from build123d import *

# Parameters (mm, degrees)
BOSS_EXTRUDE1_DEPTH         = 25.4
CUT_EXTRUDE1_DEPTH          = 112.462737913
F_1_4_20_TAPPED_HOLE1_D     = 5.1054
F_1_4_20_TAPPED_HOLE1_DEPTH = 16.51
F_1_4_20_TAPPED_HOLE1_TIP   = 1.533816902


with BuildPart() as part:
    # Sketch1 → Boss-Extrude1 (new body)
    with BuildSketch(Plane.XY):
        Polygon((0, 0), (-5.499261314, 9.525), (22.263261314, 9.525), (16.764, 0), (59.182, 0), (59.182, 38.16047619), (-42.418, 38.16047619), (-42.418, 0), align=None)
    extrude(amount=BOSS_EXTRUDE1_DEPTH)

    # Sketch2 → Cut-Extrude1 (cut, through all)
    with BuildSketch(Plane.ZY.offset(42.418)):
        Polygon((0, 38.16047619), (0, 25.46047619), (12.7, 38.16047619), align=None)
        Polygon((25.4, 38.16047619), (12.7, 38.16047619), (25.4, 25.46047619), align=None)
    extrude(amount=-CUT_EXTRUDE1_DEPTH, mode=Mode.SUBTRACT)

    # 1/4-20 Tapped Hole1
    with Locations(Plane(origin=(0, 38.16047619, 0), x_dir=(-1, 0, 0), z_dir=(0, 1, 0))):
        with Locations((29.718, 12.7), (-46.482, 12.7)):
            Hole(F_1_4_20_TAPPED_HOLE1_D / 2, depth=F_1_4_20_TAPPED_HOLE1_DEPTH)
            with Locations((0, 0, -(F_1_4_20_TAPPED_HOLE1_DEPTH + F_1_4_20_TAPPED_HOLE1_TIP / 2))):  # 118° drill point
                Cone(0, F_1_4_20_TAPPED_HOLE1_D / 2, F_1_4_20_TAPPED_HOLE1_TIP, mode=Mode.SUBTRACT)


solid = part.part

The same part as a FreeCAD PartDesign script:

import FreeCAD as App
import Part
import Sketcher
Q = App.Units.Quantity


def add_polygon(sketch, points):
    """Adds a closed chain of lines whose ends are joined by coincident constraints."""
    first, n = sketch.GeometryCount, len(points)
    for a, b in zip(points, points[1:] + points[:1]):
        sketch.addGeometry(Part.LineSegment(App.Vector(*a, 0), App.Vector(*b, 0)), False)
    for i in range(n):
        sketch.addConstraint(Sketcher.Constraint("Coincident", first + i, 2, first + (i + 1) % n, 1))

doc = App.newDocument("Part")
params = doc.addObject("Spreadsheet::Sheet", "Params")
for row, (alias, value) in enumerate([
    ("sketch1_width", "4 in"),
    ("sketch1_width2", "1.67 in"),
    ("pad1_length", "1 in"),
    ("sketch2_width", "0.5 in"),
    ("sketch3_diameter", "0.201 in"),
    ("hole_diameter", "0.201 in"),
    ("hole_depth", "0.65 in"),
], start=1):
    params.set(f"A{row}", alias)
    params.set(f"B{row}", "=" + value)
    params.setAlias(f"B{row}", alias)

body = doc.addObject("PartDesign::Body", "Body")

sketch1 = doc.addObject("Sketcher::SketchObject", "Sketch")
body.addObject(sketch1)
sketch1.AttachmentSupport = (doc.XY_Plane, [""])
sketch1.MapMode = "FlatFace"
add_polygon(sketch1, [(0, 0), (-5.499261, 9.525), (22.263261, 9.525), (16.764, 0), (59.182, 0), (59.182, 38.160476), (-42.418, 38.160476), (-42.418, 0)])
sketch1.addConstraint([
    Sketcher.Constraint("Horizontal", 1),
    Sketcher.Constraint("Horizontal", 3),
    Sketcher.Constraint("Vertical", 4),
    Sketcher.Constraint("Horizontal", 5),
    Sketcher.Constraint("Vertical", 6),
    Sketcher.Constraint("Horizontal", 7),
    Sketcher.Constraint("Coincident", 7, 2, -1, 1),
    Sketcher.Constraint("PointOnObject", 2, 2, -1),
    Sketcher.Constraint("Equal", 3, 7),
    Sketcher.Constraint("Equal", 0, 2),
    Sketcher.Constraint("DistanceX", 5, 2, 5, 1, Q("4 in")),
    Sketcher.Constraint("Angle", 0, Q("120 deg")),
    Sketcher.Constraint("DistanceX", 3, 1, 3, 2, Q("1.67 in")),
    Sketcher.Constraint("DistanceY", -1, 1, 0, 2, Q("0.375 in")),
    Sketcher.Constraint("DistanceY", 4, 1, 4, 2, 38.160476),
])
sketch1.setExpression("Constraints[18]", "Params.sketch1_width")
sketch1.setExpression("Constraints[20]", "Params.sketch1_width2")
pad1 = doc.addObject("PartDesign::Pad", "Pad")
body.addObject(pad1)
pad1.Profile = sketch1
pad1.setExpression("Length", "Params.pad1_length")

sketch2 = doc.addObject("Sketcher::SketchObject", "Sketch001")
body.addObject(sketch2)
sketch2.AttachmentSupport = (doc.YZ_Plane, [""])
sketch2.MapMode = "FlatFace"
sketch2.AttachmentOffset = App.Placement(App.Vector(0, 0, -1.67 * 25.4), App.Rotation())
add_polygon(sketch2, [(38.160476, 0), (25.460476, 0), (38.160476, 12.7)])
add_polygon(sketch2, [(38.160476, 25.4), (38.160476, 12.7), (25.460476, 25.4)])
sketch2.addConstraint([
    Sketcher.Constraint("Horizontal", 0),
    Sketcher.Constraint("Vertical", 2),
    Sketcher.Constraint("Vertical", 3),
    Sketcher.Constraint("Horizontal", 5),
    Sketcher.Constraint("Coincident", 3, 2, 1, 2),
    Sketcher.Constraint("PointOnObject", 0, 2, -1),
    Sketcher.Constraint("Perpendicular", 1, 4),
    Sketcher.Constraint("Vertical", 0, 2, 4, 2),
    Sketcher.Constraint("Equal", 5, 2),
    Sketcher.Constraint("DistanceX", 0, 2, 0, 1, Q("0.5 in")),
    Sketcher.Constraint("DistanceX", -1, 1, 0, 2, 25.460476),
])
sketch2.setExpression("Constraints[15]", "Params.sketch2_width")
pocket1 = doc.addObject("PartDesign::Pocket", "Pocket")
body.addObject(pocket1)
pocket1.Profile = sketch2
pocket1.Type = "ThroughAll"
pocket1.Reversed = True

sketch3 = doc.addObject("Sketcher::SketchObject", "Sketch002")
body.addObject(sketch3)
sketch3.AttachmentSupport = (doc.XZ_Plane, [""])
sketch3.MapMode = "FlatFace"
sketch3.AttachmentOffset = App.Placement(App.Vector(0, 0, -38.160476), App.Rotation())
sketch3.addGeometry([
    Part.Circle(App.Vector(-29.718, 12.7, 0), App.Vector(0, 0, 1), 2.5527),
    Part.Circle(App.Vector(46.482, 12.7, 0), App.Vector(0, 0, 1), 2.5527),
], False)
sketch3.addConstraint([
    Sketcher.Constraint("Equal", 0, 1),
    Sketcher.Constraint("Horizontal", 0, 3, 1, 3),
    Sketcher.Constraint("Diameter", 0, Q("0.201 in")),
    Sketcher.Constraint("DistanceX", 0, 3, 1, 3, Q("3 in")),
    Sketcher.Constraint("DistanceY", -1, 1, 0, 3, Q("0.5 in")),
    Sketcher.Constraint("DistanceX", 0, 3, -1, 1, Q("1.17 in")),
])
sketch3.setExpression("Constraints[2]", "Params.sketch3_diameter")
doc.recompute()
hole = doc.addObject("PartDesign::Hole", "Hole")
body.addObject(hole)
hole.Profile = sketch3
hole.ThreadType = "None"
hole.setExpression("Diameter", "Params.hole_diameter")
hole.DepthType = "Dimension"
hole.setExpression("Depth", "Params.hole_depth")
hole.DrillPoint = "Angled"
hole.DrillPointAngle = 118
hole.Reversed = True

doc.recompute()
